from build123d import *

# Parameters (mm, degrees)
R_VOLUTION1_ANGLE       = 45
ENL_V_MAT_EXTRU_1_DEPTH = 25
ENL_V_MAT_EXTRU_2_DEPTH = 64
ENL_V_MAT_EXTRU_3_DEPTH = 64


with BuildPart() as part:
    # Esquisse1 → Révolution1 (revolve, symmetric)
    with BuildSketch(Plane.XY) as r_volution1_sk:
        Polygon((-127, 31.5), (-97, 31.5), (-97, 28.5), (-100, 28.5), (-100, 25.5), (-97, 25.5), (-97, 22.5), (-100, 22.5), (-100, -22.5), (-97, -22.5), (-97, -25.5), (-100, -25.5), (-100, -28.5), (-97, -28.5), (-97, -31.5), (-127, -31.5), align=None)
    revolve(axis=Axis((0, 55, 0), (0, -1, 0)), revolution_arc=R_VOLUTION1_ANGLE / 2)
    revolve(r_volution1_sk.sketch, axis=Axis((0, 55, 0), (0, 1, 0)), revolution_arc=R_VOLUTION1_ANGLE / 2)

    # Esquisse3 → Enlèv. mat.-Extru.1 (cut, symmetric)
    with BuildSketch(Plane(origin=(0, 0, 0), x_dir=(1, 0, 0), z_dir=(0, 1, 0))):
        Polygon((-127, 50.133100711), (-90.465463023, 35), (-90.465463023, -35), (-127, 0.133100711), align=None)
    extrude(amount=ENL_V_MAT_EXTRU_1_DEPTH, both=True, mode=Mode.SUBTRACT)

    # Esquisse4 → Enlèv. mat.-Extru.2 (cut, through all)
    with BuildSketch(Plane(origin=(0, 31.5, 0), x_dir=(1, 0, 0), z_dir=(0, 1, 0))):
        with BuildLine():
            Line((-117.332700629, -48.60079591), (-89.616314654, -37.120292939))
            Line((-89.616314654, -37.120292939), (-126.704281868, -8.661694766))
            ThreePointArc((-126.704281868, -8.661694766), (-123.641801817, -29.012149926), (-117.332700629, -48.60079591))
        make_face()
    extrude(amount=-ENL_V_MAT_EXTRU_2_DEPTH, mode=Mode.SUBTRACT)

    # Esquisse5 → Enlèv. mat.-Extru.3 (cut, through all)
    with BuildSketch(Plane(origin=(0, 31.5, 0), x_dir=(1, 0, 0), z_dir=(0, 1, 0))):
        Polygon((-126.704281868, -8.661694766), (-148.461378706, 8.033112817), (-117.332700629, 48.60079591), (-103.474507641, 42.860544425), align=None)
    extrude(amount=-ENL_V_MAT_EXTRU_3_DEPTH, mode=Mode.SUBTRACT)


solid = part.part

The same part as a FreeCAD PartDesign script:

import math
import FreeCAD as App
import Part
import Sketcher

V = App.Vector
Q = App.Units.Quantity

doc = App.newDocument("Part")
body = doc.addObject("PartDesign::Body", "Body")

# Sketch on XY plane
sketch1 = doc.addObject("Sketcher::SketchObject", "Sketch")
body.addObject(sketch1)
sketch1.AttachmentSupport = (doc.XY_Plane, [""])
sketch1.MapMode = "FlatFace"
sketch1.addGeometry([
    Part.LineSegment(V(-97, 31.5, 0), V(-127, 31.5, 0)),  # 0
    Part.LineSegment(V(-127, 31.5, 0), V(-127, -31.5, 0)),  # 1
    Part.LineSegment(V(-127, -31.5, 0), V(-97, -31.5, 0)),  # 2
    Part.LineSegment(V(-97, -31.5, 0), V(-97, -28.5, 0)),  # 3
    Part.LineSegment(V(-97, -28.5, 0), V(-100, -28.5, 0)),  # 4
    Part.LineSegment(V(-100, -28.5, 0), V(-100, -25.5, 0)),  # 5
    Part.LineSegment(V(-100, -25.5, 0), V(-97, -25.5, 0)),  # 6
    Part.LineSegment(V(-97, -25.5, 0), V(-97, -22.5, 0)),  # 7
    Part.LineSegment(V(-97, -22.5, 0), V(-100, -22.5, 0)),  # 8
    Part.LineSegment(V(-100, -22.5, 0), V(-100, 22.5, 0)),  # 9
    Part.LineSegment(V(-100, 22.5, 0), V(-97, 22.5, 0)),  # 10
    Part.LineSegment(V(-97, 22.5, 0), V(-97, 25.5, 0)),  # 11
    Part.LineSegment(V(-97, 25.5, 0), V(-100, 25.5, 0)),  # 12
    Part.LineSegment(V(-100, 25.5, 0), V(-100, 28.5, 0)),  # 13
    Part.LineSegment(V(-100, 28.5, 0), V(-97, 28.5, 0)),  # 14
    Part.LineSegment(V(-97, 28.5, 0), V(-97, 31.5, 0)),  # 15
], False)
sketch1.addConstraint([
    Sketcher.Constraint("Coincident", 0, 2, 1, 1),
    Sketcher.Constraint("Coincident", 1, 2, 2, 1),
    Sketcher.Constraint("Coincident", 2, 2, 3, 1),
    Sketcher.Constraint("Coincident", 3, 2, 4, 1),
    Sketcher.Constraint("Coincident", 4, 2, 5, 1),
    Sketcher.Constraint("Coincident", 5, 2, 6, 1),
    Sketcher.Constraint("Coincident", 6, 2, 7, 1),
    Sketcher.Constraint("Coincident", 7, 2, 8, 1),
    Sketcher.Constraint("Coincident", 8, 2, 9, 1),
    Sketcher.Constraint("Coincident", 9, 2, 10, 1),
    Sketcher.Constraint("Coincident", 10, 2, 11, 1),
    Sketcher.Constraint("Coincident", 11, 2, 12, 1),
    Sketcher.Constraint("Coincident", 12, 2, 13, 1),
    Sketcher.Constraint("Coincident", 13, 2, 14, 1),
    Sketcher.Constraint("Coincident", 14, 2, 15, 1),
    Sketcher.Constraint("Coincident", 15, 2, 0, 1),
    Sketcher.Constraint("Horizontal", 0),
    Sketcher.Constraint("Vertical", 1),
    Sketcher.Constraint("Horizontal", 2),
    Sketcher.Constraint("Vertical", 3),
    Sketcher.Constraint("Horizontal", 4),
    Sketcher.Constraint("Vertical", 5),
    Sketcher.Constraint("Horizontal", 6),
    Sketcher.Constraint("Vertical", 7),
    Sketcher.Constraint("Horizontal", 8),
    Sketcher.Constraint("Vertical", 9),
    Sketcher.Constraint("Horizontal", 10),
    Sketcher.Constraint("Vertical", 11),
    Sketcher.Constraint("Horizontal", 12),
    Sketcher.Constraint("Vertical", 13),
    Sketcher.Constraint("Horizontal", 14),
    Sketcher.Constraint("Vertical", 15),
    Sketcher.Constraint("Symmetric", 7, 2, 10, 2, -1),
    Sketcher.Constraint("Symmetric", 5, 2, 12, 2, -1),
    Sketcher.Constraint("Symmetric", 3, 2, 14, 2, -1),
    Sketcher.Constraint("Vertical", 3, 2, 6, 2),
    Sketcher.Constraint("Vertical", 5, 2, 8, 2),
    Sketcher.Constraint("Equal", 14, 3),
    Sketcher.Constraint("Equal", 3, 5),
    Sketcher.Constraint("Equal", 5, 7),
    Sketcher.Constraint("Equal", 13, 15),
    Sketcher.Constraint("DistanceX", 0, 2, 0, 1, 30.0),
    Sketcher.Constraint("DistanceX", 4, 2, 4, 1, 3.0),
    Sketcher.Constraint("DistanceY", 1, 2, 1, 1, 63.0),
    Sketcher.Constraint("DistanceX", 0, 2, -1, 1, 127.0),
])
revolution = doc.addObject("PartDesign::Revolution", "Revolution")
body.addObject(revolution)
revolution.Profile = sketch1
revolution.ReferenceAxis = (sketch1, ["V_Axis"])
revolution.Angle = 22.5
revolution.Reversed = True

# Sketch on XY plane
sketch2 = doc.addObject("Sketcher::SketchObject", "Sketch001")
body.addObject(sketch2)
sketch2.AttachmentSupport = (doc.XY_Plane, [""])
sketch2.MapMode = "FlatFace"
sketch2.addGeometry([
    Part.LineSegment(V(-97, 31.5, 0), V(-127, 31.5, 0)),  # 0
    Part.LineSegment(V(-127, 31.5, 0), V(-127, -31.5, 0)),  # 1
    Part.LineSegment(V(-127, -31.5, 0), V(-97, -31.5, 0)),  # 2
    Part.LineSegment(V(-97, -31.5, 0), V(-97, -28.5, 0)),  # 3
    Part.LineSegment(V(-97, -28.5, 0), V(-100, -28.5, 0)),  # 4
    Part.LineSegment(V(-100, -28.5, 0), V(-100, -25.5, 0)),  # 5
    Part.LineSegment(V(-100, -25.5, 0), V(-97, -25.5, 0)),  # 6
    Part.LineSegment(V(-97, -25.5, 0), V(-97, -22.5, 0)),  # 7
    Part.LineSegment(V(-97, -22.5, 0), V(-100, -22.5, 0)),  # 8
    Part.LineSegment(V(-100, -22.5, 0), V(-100, 22.5, 0)),  # 9
    Part.LineSegment(V(-100, 22.5, 0), V(-97, 22.5, 0)),  # 10
    Part.LineSegment(V(-97, 22.5, 0), V(-97, 25.5, 0)),  # 11
    Part.LineSegment(V(-97, 25.5, 0), V(-100, 25.5, 0)),  # 12
    Part.LineSegment(V(-100, 25.5, 0), V(-100, 28.5, 0)),  # 13
    Part.LineSegment(V(-100, 28.5, 0), V(-97, 28.5, 0)),  # 14
    Part.LineSegment(V(-97, 28.5, 0), V(-97, 31.5, 0)),  # 15
], False)
sketch2.addConstraint([
    Sketcher.Constraint("Coincident", 0, 2, 1, 1),
    Sketcher.Constraint("Coincident", 1, 2, 2, 1),
    Sketcher.Constraint("Coincident", 2, 2, 3, 1),
    Sketcher.Constraint("Coincident", 3, 2, 4, 1),
    Sketcher.Constraint("Coincident", 4, 2, 5, 1),
    Sketcher.Constraint("Coincident", 5, 2, 6, 1),
    Sketcher.Constraint("Coincident", 6, 2, 7, 1),
    Sketcher.Constraint("Coincident", 7, 2, 8, 1),
    Sketcher.Constraint("Coincident", 8, 2, 9, 1),
    Sketcher.Constraint("Coincident", 9, 2, 10, 1),
    Sketcher.Constraint("Coincident", 10, 2, 11, 1),
    Sketcher.Constraint("Coincident", 11, 2, 12, 1),
    Sketcher.Constraint("Coincident", 12, 2, 13, 1),
    Sketcher.Constraint("Coincident", 13, 2, 14, 1),
    Sketcher.Constraint("Coincident", 14, 2, 15, 1),
    Sketcher.Constraint("Coincident", 15, 2, 0, 1),
    Sketcher.Constraint("Horizontal", 0),
    Sketcher.Constraint("Vertical", 1),
    Sketcher.Constraint("Horizontal", 2),
    Sketcher.Constraint("Vertical", 3),
    Sketcher.Constraint("Horizontal", 4),
    Sketcher.Constraint("Vertical", 5),
    Sketcher.Constraint("Horizontal", 6),
    Sketcher.Constraint("Vertical", 7),
    Sketcher.Constraint("Horizontal", 8),
    Sketcher.Constraint("Vertical", 9),
    Sketcher.Constraint("Horizontal", 10),
    Sketcher.Constraint("Vertical", 11),
    Sketcher.Constraint("Horizontal", 12),
    Sketcher.Constraint("Vertical", 13),
    Sketcher.Constraint("Horizontal", 14),
    Sketcher.Constraint("Vertical", 15),
    Sketcher.Constraint("Symmetric", 7, 2, 10, 2, -1),
    Sketcher.Constraint("Symmetric", 5, 2, 12, 2, -1),
    Sketcher.Constraint("Symmetric", 3, 2, 14, 2, -1),
    Sketcher.Constraint("Vertical", 3, 2, 6, 2),
    Sketcher.Constraint("Vertical", 5, 2, 8, 2),
    Sketcher.Constraint("Equal", 14, 3),
    Sketcher.Constraint("Equal", 3, 5),
    Sketcher.Constraint("Equal", 5, 7),
    Sketcher.Constraint("Equal", 13, 15),
    Sketcher.Constraint("DistanceX", 0, 2, 0, 1, 30.0),
    Sketcher.Constraint("DistanceX", 4, 2, 4, 1, 3.0),
    Sketcher.Constraint("DistanceY", 1, 2, 1, 1, 63.0),
    Sketcher.Constraint("DistanceX", 0, 2, -1, 1, 127.0),
])
revolution2 = doc.addObject("PartDesign::Revolution", "Revolution001")
body.addObject(revolution2)
revolution2.Profile = sketch2
revolution2.ReferenceAxis = (sketch2, ["V_Axis"])
revolution2.Angle = 22.5

# Sketch on XZ plane
sketch3 = doc.addObject("Sketcher::SketchObject", "Sketch002")
body.addObject(sketch3)
sketch3.AttachmentSupport = (doc.XZ_Plane, [""])
sketch3.MapMode = "FlatFace"
sketch3.addGeometry([
    Part.LineSegment(V(-90, -35, 0), V(-127, -50, 0)),
    Part.LineSegment(V(-127, -50, 0), V(-127, 0, 0)),
    Part.LineSegment(V(-127, 0, 0), V(-90, 35, 0)),
    Part.LineSegment(V(-90, 35, 0), V(-90, -35, 0)),
], False)
sketch3.addConstraint([
    Sketcher.Constraint("Coincident", 0, 2, 1, 1),
    Sketcher.Constraint("Coincident", 1, 2, 2, 1),
    Sketcher.Constraint("Coincident", 2, 2, 3, 1),
    Sketcher.Constraint("Coincident", 3, 2, 0, 1),
    Sketcher.Constraint("Vertical", 1),
    Sketcher.Constraint("Vertical", 3),
    Sketcher.Constraint("DistanceY", 1, 1, 1, 2, 50.0),
    Sketcher.Constraint("DistanceY", 3, 2, 3, 1, 70.0),
    Sketcher.Constraint("DistanceX", 0, 2, -1, 1, 127.0),
    Sketcher.Constraint("DistanceY", -1, 1, 2, 2, 35.0),
    Sketcher.Constraint("Angle", 0, Q("-157.5 deg")),
    Sketcher.Constraint("DistanceY", 0, 2, -1, 1, 50.133101),
])
pocket1 = doc.addObject("PartDesign::Pocket", "Pocket")
body.addObject(pocket1)
pocket1.Profile = sketch3
pocket1.Length = 50
pocket1.Midplane = True

# Sketch on XZ plane
sketch4 = doc.addObject("Sketcher::SketchObject", "Sketch003")
body.addObject(sketch4)
sketch4.AttachmentSupport = (doc.XZ_Plane, [""])
sketch4.MapMode = "FlatFace"
sketch4.AttachmentOffset = App.Placement(V(0, 0, -31.5), App.Rotation())
sketch4.addGeometry([
    Part.LineSegment(V(-117, 49, 0), V(-90, 37, 0)),
    Part.LineSegment(V(-90, 37, 0), V(-127, 9, 0)),
    Part.ArcOfCircle(Part.Circle(V(0, 0, 0), V(0, 0, 1), 127), math.radians(157.5), math.radians(176.09)),
], False)
sketch4.addConstraint([
    Sketcher.Constraint("Coincident", 0, 2, 1, 1),
    Sketcher.Constraint("Coincident", 1, 2, 2, 2),
    Sketcher.Constraint("Coincident", 2, 1, 0, 1),
    Sketcher.Constraint("Coincident", 2, 3, -1, 1),
    Sketcher.Constraint("Radius", 2, 127.0),
    Sketcher.Constraint("Distance", 0, 30.0),
    Sketcher.Constraint("Angle", 0, Q("-22.5 deg")),
    Sketcher.Constraint("Angle", 1, Q("-142.5 deg")),
    Sketcher.Constraint("DistanceX", 2, 1, -1, 1, 117.332701),
])
pocket2 = doc.addObject("PartDesign::Pocket", "Pocket001")
body.addObject(pocket2)
pocket2.Profile = sketch4
pocket2.Type = "ThroughAll"
pocket2.Reversed = True

# Sketch on XZ plane
sketch5 = doc.addObject("Sketcher::SketchObject", "Sketch004")
body.addObject(sketch5)
sketch5.AttachmentSupport = (doc.XZ_Plane, [""])
sketch5.MapMode = "FlatFace"
sketch5.AttachmentOffset = App.Placement(V(0, 0, -31.5), App.Rotation())
sketch5.addGeometry([
    Part.LineSegment(V(-148, -8, 0), V(-127, 9, 0)),
    Part.LineSegment(V(-127, 9, 0), V(-103, -43, 0)),
    Part.LineSegment(V(-103, -43, 0), V(-117, -49, 0)),
    Part.LineSegment(V(-117, -49, 0), V(-148, -8, 0)),
], False)
sketch5.addConstraint([
    Sketcher.Constraint("Coincident", 0, 2, 1, 1),
    Sketcher.Constraint("Coincident", 1, 2, 2, 1),
    Sketcher.Constraint("Coincident", 2, 2, 3, 1),
    Sketcher.Constraint("Coincident", 3, 2, 0, 1),
    Sketcher.Constraint("Perpendicular", 0, 3),
    Sketcher.Constraint("Distance", 2, 15.0),
    Sketcher.Constraint("Angle", 0, Q("37.5 deg")),
    Sketcher.Constraint("Angle", 2, Q("-157.5 deg")),
    Sketcher.Constraint("DistanceX", 2, 2, -1, 1, 117.332701),
    Sketcher.Constraint("Distance", 0, 27.42422),
    Sketcher.Constraint("Distance", 1, 56.516931),
    Sketcher.Constraint("DistanceY", -1, 1, 0, 2, 8.661695),
])
pocket3 = doc.addObject("PartDesign::Pocket", "Pocket002")
body.addObject(pocket3)
pocket3.Profile = sketch5
pocket3.Type = "ThroughAll"
pocket3.Reversed = True

doc.recompute()
